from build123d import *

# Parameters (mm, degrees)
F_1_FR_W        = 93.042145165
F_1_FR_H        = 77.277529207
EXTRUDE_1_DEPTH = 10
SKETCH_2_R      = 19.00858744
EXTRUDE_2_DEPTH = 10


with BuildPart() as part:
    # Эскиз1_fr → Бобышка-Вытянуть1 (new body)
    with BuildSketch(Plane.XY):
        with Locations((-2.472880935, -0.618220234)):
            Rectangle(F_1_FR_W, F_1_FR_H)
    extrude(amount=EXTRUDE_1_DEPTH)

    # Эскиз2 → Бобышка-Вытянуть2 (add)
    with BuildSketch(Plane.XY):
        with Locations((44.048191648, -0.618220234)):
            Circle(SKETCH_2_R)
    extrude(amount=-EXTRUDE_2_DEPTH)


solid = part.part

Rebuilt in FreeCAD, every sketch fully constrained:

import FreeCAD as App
import Part
import Sketcher
Q = App.Units.Quantity

doc = App.newDocument("Part")
body = doc.addObject("PartDesign::Body", "Body")

# Sketch on XY plane
sketch1 = body.newObject("Sketcher::SketchObject", "Sketch")
sketch1.AttachmentSupport = (doc.getObject("XY_Plane"), [""])
sketch1.MapMode = "FlatFace"
sketch1.addGeometry([
    Part.LineSegment(App.Vector(-49, 38, 0), App.Vector(-49, -39, 0)),
    Part.LineSegment(App.Vector(-49, -39, 0), App.Vector(44, -39, 0)),
    Part.LineSegment(App.Vector(44, -39, 0), App.Vector(44, 38, 0)),
    Part.LineSegment(App.Vector(44, 38, 0), App.Vector(-49, 38, 0)),
], False)
sketch1.addConstraint([
    Sketcher.Constraint("Coincident", 0, 2, 1, 1),
    Sketcher.Constraint("Coincident", 1, 2, 2, 1),
    Sketcher.Constraint("Coincident", 2, 2, 3, 1),
    Sketcher.Constraint("Coincident", 3, 2, 0, 1),
    Sketcher.Constraint("Vertical", 0),
    Sketcher.Constraint("Horizontal", 1),
    Sketcher.Constraint("Vertical", 2),
    Sketcher.Constraint("Horizontal", 3),
    Sketcher.Constraint("DistanceY", 0, 2, 0, 1, Q("77.277529 mm")),
    Sketcher.Constraint("DistanceX", 1, 1, 1, 2, Q("93.042145 mm")),
    Sketcher.Constraint("DistanceX", -1, 1, 1, 2, Q("44.048192 mm")),
    Sketcher.Constraint("DistanceY", 0, 2, -1, 1, Q("39.256985 mm")),
])
pad1 = body.newObject("PartDesign::Pad", "Pad")
pad1.Profile = sketch1
pad1.Length = 10

# Sketch on XY plane
sketch2 = body.newObject("Sketcher::SketchObject", "Sketch001")
sketch2.AttachmentSupport = (doc.getObject("XY_Plane"), [""])
sketch2.MapMode = "FlatFace"
sketch2.addGeometry(Part.Circle(App.Vector(44, -1, 0), App.Vector(0, 0, 1), 19), False)
sketch2.addConstraint([
    Sketcher.Constraint("Diameter", 0, Q("38.017175 mm")),
    Sketcher.Constraint("DistanceX", -1, 1, 0, 3, Q("44.048192 mm")),
    Sketcher.Constraint("DistanceY", 0, 3, -1, 1, Q("0.61822 mm")),
])
pad2 = body.newObject("PartDesign::Pad", "Pad001")
pad2.Profile = sketch2
pad2.Length = 10
pad2.Reversed = True

doc.recompute()
